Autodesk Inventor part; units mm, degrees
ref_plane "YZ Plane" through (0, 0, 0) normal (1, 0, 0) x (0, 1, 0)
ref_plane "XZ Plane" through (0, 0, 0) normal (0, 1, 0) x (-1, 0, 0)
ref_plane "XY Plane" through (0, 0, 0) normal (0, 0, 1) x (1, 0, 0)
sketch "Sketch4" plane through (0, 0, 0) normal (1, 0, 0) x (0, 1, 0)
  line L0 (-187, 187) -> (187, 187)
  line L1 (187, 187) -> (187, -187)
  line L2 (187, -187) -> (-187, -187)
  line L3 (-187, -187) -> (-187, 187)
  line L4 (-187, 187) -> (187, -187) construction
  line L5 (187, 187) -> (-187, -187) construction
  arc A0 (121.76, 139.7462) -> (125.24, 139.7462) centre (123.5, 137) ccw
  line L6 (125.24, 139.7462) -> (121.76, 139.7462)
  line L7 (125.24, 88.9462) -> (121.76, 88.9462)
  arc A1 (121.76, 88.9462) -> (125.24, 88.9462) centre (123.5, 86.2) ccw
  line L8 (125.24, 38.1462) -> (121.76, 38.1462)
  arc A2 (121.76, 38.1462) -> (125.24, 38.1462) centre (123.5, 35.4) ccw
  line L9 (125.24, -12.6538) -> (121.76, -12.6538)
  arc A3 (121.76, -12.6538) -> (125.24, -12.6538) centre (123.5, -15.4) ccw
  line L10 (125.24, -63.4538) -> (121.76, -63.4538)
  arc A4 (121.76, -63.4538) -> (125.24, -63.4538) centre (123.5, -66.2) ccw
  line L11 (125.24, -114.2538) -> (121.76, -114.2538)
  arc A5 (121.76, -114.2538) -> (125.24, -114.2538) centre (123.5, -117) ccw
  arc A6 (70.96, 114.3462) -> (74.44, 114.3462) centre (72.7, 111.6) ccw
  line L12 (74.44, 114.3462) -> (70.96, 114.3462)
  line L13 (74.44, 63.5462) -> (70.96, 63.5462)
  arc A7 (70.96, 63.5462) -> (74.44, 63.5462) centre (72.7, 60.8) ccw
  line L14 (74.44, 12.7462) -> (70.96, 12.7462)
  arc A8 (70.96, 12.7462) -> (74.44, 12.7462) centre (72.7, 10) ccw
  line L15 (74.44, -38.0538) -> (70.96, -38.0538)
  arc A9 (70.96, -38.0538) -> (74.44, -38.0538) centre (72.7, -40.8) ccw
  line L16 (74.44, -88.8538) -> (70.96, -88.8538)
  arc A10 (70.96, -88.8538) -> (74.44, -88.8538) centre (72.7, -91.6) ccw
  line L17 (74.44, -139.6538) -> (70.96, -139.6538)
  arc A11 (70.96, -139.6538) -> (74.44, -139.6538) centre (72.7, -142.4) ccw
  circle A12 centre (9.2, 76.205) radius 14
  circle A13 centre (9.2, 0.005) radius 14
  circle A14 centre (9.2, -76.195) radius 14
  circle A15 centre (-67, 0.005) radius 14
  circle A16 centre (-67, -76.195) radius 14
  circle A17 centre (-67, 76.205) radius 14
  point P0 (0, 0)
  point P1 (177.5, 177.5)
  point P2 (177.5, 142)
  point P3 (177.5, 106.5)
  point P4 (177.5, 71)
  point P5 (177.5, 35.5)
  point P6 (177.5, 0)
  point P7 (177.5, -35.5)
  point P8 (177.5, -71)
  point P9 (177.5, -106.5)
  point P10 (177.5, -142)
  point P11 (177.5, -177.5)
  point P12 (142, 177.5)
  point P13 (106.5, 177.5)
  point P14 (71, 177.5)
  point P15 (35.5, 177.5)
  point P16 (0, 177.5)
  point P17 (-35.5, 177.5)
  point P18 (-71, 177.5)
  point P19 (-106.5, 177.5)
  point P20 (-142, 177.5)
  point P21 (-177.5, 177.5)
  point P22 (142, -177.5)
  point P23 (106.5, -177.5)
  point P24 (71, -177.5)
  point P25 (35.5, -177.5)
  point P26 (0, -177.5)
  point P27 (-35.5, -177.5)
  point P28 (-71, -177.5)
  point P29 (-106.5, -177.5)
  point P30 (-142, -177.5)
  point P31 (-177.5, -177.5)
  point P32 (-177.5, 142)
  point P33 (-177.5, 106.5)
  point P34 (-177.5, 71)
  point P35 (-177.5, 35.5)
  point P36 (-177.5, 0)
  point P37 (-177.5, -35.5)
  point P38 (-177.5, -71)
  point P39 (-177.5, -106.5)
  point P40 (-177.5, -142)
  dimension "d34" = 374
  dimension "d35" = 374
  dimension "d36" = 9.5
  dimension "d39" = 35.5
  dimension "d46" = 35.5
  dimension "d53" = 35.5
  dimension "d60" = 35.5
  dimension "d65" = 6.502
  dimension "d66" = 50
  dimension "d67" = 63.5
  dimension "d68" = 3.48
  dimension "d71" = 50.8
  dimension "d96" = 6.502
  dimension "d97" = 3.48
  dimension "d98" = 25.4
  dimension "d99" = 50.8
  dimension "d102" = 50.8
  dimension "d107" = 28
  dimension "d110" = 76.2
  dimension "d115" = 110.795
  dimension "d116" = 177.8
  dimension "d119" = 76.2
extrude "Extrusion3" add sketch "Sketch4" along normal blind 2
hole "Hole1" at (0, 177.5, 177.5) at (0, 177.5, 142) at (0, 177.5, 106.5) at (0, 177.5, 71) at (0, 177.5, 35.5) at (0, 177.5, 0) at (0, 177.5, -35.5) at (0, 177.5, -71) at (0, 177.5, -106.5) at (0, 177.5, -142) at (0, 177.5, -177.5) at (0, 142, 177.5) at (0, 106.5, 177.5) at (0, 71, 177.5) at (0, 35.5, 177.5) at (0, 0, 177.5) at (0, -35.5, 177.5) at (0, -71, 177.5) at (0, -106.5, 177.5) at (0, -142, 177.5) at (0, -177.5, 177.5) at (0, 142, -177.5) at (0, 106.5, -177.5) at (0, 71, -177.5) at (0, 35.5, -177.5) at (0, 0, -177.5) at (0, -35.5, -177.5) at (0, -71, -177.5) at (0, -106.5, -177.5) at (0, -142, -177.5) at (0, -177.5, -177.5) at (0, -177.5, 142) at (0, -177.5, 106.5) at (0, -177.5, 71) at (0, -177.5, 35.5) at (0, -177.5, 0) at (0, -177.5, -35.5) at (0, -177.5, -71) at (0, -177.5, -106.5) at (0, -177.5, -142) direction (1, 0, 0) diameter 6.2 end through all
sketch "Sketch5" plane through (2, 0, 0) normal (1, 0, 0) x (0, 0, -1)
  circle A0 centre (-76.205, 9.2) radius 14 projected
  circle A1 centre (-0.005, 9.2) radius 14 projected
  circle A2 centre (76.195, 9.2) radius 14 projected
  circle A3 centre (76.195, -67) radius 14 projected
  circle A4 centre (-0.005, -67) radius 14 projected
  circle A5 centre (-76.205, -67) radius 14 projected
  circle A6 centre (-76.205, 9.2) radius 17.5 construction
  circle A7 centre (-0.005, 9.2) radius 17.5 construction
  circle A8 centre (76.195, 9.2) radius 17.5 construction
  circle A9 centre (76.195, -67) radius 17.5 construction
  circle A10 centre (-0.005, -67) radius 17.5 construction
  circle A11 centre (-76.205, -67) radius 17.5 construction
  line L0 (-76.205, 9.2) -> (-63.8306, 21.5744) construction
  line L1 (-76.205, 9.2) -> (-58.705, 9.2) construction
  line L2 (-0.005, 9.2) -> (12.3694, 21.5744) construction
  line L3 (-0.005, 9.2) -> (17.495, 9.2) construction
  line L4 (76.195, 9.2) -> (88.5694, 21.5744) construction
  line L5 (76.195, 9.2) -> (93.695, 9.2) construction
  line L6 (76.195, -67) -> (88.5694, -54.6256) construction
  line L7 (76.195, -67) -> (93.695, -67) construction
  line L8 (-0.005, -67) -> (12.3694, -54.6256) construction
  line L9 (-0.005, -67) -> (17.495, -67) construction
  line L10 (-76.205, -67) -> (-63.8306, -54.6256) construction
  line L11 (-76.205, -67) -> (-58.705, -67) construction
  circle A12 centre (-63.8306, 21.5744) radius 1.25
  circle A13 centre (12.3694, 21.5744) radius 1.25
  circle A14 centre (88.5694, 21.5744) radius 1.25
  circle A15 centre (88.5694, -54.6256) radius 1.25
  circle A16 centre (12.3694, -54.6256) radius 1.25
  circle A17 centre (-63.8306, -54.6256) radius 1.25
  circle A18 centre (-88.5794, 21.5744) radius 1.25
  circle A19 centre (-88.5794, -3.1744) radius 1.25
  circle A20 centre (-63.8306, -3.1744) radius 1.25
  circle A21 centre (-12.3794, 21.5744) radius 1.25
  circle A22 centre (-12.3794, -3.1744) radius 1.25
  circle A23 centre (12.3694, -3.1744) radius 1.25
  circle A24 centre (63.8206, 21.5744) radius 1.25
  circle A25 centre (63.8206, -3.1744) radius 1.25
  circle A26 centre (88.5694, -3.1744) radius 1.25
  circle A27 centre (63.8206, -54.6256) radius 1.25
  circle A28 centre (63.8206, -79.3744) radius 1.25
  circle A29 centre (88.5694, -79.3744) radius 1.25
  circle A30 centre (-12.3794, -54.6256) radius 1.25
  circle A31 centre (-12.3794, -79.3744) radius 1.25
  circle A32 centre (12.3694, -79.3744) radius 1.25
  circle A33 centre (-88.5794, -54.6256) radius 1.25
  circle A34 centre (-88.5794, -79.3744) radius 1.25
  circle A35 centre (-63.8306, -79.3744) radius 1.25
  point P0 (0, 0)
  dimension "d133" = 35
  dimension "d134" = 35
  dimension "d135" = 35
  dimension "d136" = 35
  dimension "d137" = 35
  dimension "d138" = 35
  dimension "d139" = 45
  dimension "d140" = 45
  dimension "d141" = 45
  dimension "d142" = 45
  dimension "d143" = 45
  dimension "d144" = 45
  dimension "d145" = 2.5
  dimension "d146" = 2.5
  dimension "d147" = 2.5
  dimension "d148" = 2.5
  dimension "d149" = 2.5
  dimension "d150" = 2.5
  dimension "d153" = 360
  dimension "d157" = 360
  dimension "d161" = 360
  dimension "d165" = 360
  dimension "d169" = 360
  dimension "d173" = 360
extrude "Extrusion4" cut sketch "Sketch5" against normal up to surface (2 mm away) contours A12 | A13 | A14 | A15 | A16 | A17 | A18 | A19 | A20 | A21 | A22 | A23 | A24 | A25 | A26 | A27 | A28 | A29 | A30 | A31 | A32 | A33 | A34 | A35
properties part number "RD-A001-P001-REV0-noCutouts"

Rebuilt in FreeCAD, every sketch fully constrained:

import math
import FreeCAD as App
import Part
import Sketcher
from FreeCAD import Vector

doc = App.newDocument("Part")
params = doc.addObject("Spreadsheet::Sheet", "Params")
for row, (alias, value) in enumerate([
    ("sketch1_diameter", "28 mm"),
    ("sketch1_width", "374 mm"),
    ("sketch1_width2", "3.48 mm"),
    ("pad1_length", "2 mm"),
    ("sketch2_diameter", "6.2 mm"),
    ("hole_diameter", "6.2 mm"),
    ("sketch3_diameter", "2.5 mm"),
    ("pocket1_length", "2 mm"),
], start=1):
    params.set(f"A{row}", alias)
    params.set(f"B{row}", "=" + value)
    params.setAlias(f"B{row}", alias)

body = doc.addObject("PartDesign::Body", "Body")

sketch1 = body.newObject("Sketcher::SketchObject", "Sketch")
sketch1.AttachmentSupport = (doc.getObject("YZ_Plane"), [""])
sketch1.MapMode = "FlatFace"
sketch1.addGeometry([
    Part.LineSegment(Vector(187, 187, 0), Vector(-187, 187, 0)),
    Part.LineSegment(Vector(-187, 187, 0), Vector(-187, -187, 0)),
    Part.LineSegment(Vector(-187, -187, 0), Vector(187, -187, 0)),
    Part.LineSegment(Vector(187, -187, 0), Vector(187, 187, 0)),
    Part.Circle(Vector(-67, -76.195, 0), Vector(0, 0, 1), 14),
    Part.LineSegment(Vector(70.96, -139.6538, 0), Vector(74.44, -139.6538, 0)),
    Part.ArcOfCircle(Part.Circle(Vector(72.7, -142.4, 0), Vector(0, 0, 1), 3.251033), math.radians(122.358461), math.radians(417.641539)),
    Part.LineSegment(Vector(121.76, -114.2538, 0), Vector(125.24, -114.2538, 0)),
    Part.ArcOfCircle(Part.Circle(Vector(123.5, -117, 0), Vector(0, 0, 1), 3.251033), math.radians(122.358461), math.radians(417.641539)),
    Part.Circle(Vector(9.2, -76.195, 0), Vector(0, 0, 1), 14),
    Part.LineSegment(Vector(70.96, -88.8538, 0), Vector(74.44, -88.8538, 0)),
    Part.ArcOfCircle(Part.Circle(Vector(72.7, -91.6, 0), Vector(0, 0, 1), 3.251033), math.radians(122.358461), math.radians(417.641539)),
    Part.LineSegment(Vector(70.96, -38.0538, 0), Vector(74.44, -38.0538, 0)),
    Part.ArcOfCircle(Part.Circle(Vector(72.7, -40.8, 0), Vector(0, 0, 1), 3.251033), math.radians(122.358461), math.radians(417.641539)),
    Part.LineSegment(Vector(121.76, -63.4538, 0), Vector(125.24, -63.4538, 0)),
    Part.ArcOfCircle(Part.Circle(Vector(123.5, -66.2, 0), Vector(0, 0, 1), 3.251033), math.radians(122.358461), math.radians(417.641539)),
    Part.LineSegment(Vector(121.76, -12.6538, 0), Vector(125.24, -12.6538, 0)),
    Part.ArcOfCircle(Part.Circle(Vector(123.5, -15.4, 0), Vector(0, 0, 1), 3.251033), math.radians(122.358461), math.radians(417.641539)),
    Part.Circle(Vector(-67, 0.005, 0), Vector(0, 0, 1), 14),
    Part.Circle(Vector(-67, 76.205, 0), Vector(0, 0, 1), 14),
    Part.Circle(Vector(9.2, 0.005, 0), Vector(0, 0, 1), 14),
    Part.LineSegment(Vector(70.96, 12.7462, 0), Vector(74.44, 12.7462, 0)),
    Part.ArcOfCircle(Part.Circle(Vector(72.7, 10, 0), Vector(0, 0, 1), 3.251033), math.radians(122.358461), math.radians(417.641539)),
    Part.Circle(Vector(9.2, 76.205, 0), Vector(0, 0, 1), 14),
    Part.LineSegment(Vector(70.96, 63.5462, 0), Vector(74.44, 63.5462, 0)),
    Part.ArcOfCircle(Part.Circle(Vector(72.7, 60.8, 0), Vector(0, 0, 1), 3.251033), math.radians(122.358461), math.radians(417.641539)),
    Part.LineSegment(Vector(121.76, 38.1462, 0), Vector(125.24, 38.1462, 0)),
    Part.ArcOfCircle(Part.Circle(Vector(123.5, 35.4, 0), Vector(0, 0, 1), 3.251033), math.radians(122.358461), math.radians(417.641539)),
    Part.LineSegment(Vector(121.76, 88.9462, 0), Vector(125.24, 88.9462, 0)),
    Part.ArcOfCircle(Part.Circle(Vector(123.5, 86.2, 0), Vector(0, 0, 1), 3.251033), math.radians(122.358461), math.radians(417.641539)),
    Part.ArcOfCircle(Part.Circle(Vector(72.7, 111.6, 0), Vector(0, 0, 1), 3.251033), math.radians(122.358461), math.radians(417.641539)),
    Part.LineSegment(Vector(70.96, 114.3462, 0), Vector(74.44, 114.3462, 0)),
    Part.ArcOfCircle(Part.Circle(Vector(123.5, 137, 0), Vector(0, 0, 1), 3.251033), math.radians(122.358461), math.radians(417.641539)),
    Part.LineSegment(Vector(121.76, 139.7462, 0), Vector(125.24, 139.7462, 0)),
], False)
sketch1.addConstraint([
    Sketcher.Constraint("Coincident", 0, 2, 1, 1),
    Sketcher.Constraint("Coincident", 1, 2, 2, 1),
    Sketcher.Constraint("Coincident", 2, 2, 3, 1),
    Sketcher.Constraint("Coincident", 3, 2, 0, 1),
    Sketcher.Constraint("Coincident", 5, 1, 6, 1),
    Sketcher.Constraint("Coincident", 6, 2, 5, 2),
    Sketcher.Constraint("Coincident", 7, 1, 8, 1),
    Sketcher.Constraint("Coincident", 8, 2, 7, 2),
    Sketcher.Constraint("Coincident", 10, 1, 11, 1),
    Sketcher.Constraint("Coincident", 11, 2, 10, 2),
    Sketcher.Constraint("Coincident", 12, 1, 13, 1),
    Sketcher.Constraint("Coincident", 13, 2, 12, 2),
    Sketcher.Constraint("Coincident", 14, 1, 15, 1),
    Sketcher.Constraint("Coincident", 15, 2, 14, 2),
    Sketcher.Constraint("Coincident", 16, 1, 17, 1),
    Sketcher.Constraint("Coincident", 17, 2, 16, 2),
    Sketcher.Constraint("Coincident", 21, 1, 22, 1),
    Sketcher.Constraint("Coincident", 22, 2, 21, 2),
    Sketcher.Constraint("Coincident", 24, 1, 25, 1),
    Sketcher.Constraint("Coincident", 25, 2, 24, 2),
    Sketcher.Constraint("Coincident", 26, 1, 27, 1),
    Sketcher.Constraint("Coincident", 27, 2, 26, 2),
    Sketcher.Constraint("Coincident", 28, 1, 29, 1),
    Sketcher.Constraint("Coincident", 29, 2, 28, 2),
    Sketcher.Constraint("Coincident", 30, 1, 31, 1),
    Sketcher.Constraint("Coincident", 31, 2, 30, 2),
    Sketcher.Constraint("Coincident", 32, 1, 33, 1),
    Sketcher.Constraint("Coincident", 33, 2, 32, 2),
    Sketcher.Constraint("Horizontal", 0),
    Sketcher.Constraint("Vertical", 1),
    Sketcher.Constraint("Horizontal", 2),
    Sketcher.Constraint("Vertical", 3),
    Sketcher.Constraint("Horizontal", 5),
    Sketcher.Constraint("Horizontal", 7),
    Sketcher.Constraint("Horizontal", 10),
    Sketcher.Constraint("Horizontal", 12),
    Sketcher.Constraint("Horizontal", 14),
    Sketcher.Constraint("Horizontal", 16),
    Sketcher.Constraint("Horizontal", 21),
    Sketcher.Constraint("Horizontal", 24),
    Sketcher.Constraint("Horizontal", 26),
    Sketcher.Constraint("Horizontal", 28),
    Sketcher.Constraint("Horizontal", 31),
    Sketcher.Constraint("Horizontal", 33),
    Sketcher.Constraint("Equal", 6, 8),
    Sketcher.Constraint("Equal", 4, 9),
    Sketcher.Constraint("Equal", 8, 11),
    Sketcher.Constraint("Equal", 11, 13),
    Sketcher.Constraint("Equal", 13, 15),
    Sketcher.Constraint("Equal", 15, 17),
    Sketcher.Constraint("Equal", 9, 18),
    Sketcher.Constraint("Equal", 18, 19),
    Sketcher.Constraint("Equal", 19, 20),
    Sketcher.Constraint("Equal", 17, 22),
    Sketcher.Constraint("Equal", 20, 23),
    Sketcher.Constraint("Equal", 22, 25),
    Sketcher.Constraint("Equal", 25, 27),
    Sketcher.Constraint("Equal", 27, 29),
    Sketcher.Constraint("Equal", 29, 30),
    Sketcher.Constraint("Equal", 30, 32),
    Sketcher.Constraint("Symmetric", 0, 2, 2, 2, -1, 1),
    Sketcher.Constraint("Horizontal", 4, 3, 9, 3),
    Sketcher.Constraint("Horizontal", 18, 3, 20, 3),
    Sketcher.Constraint("Horizontal", 19, 3, 23, 3),
    Sketcher.Constraint("Vertical", 6, 3, 11, 3),
    Sketcher.Constraint("Vertical", 11, 3, 13, 3),
    Sketcher.Constraint("Vertical", 8, 3, 15, 3),
    Sketcher.Constraint("Vertical", 15, 3, 17, 3),
    Sketcher.Constraint("Vertical", 4, 3, 18, 3),
    Sketcher.Constraint("Vertical", 18, 3, 19, 3),
    Sketcher.Constraint("Vertical", 9, 3, 20, 3),
    Sketcher.Constraint("Vertical", 13, 3, 22, 3),
    Sketcher.Constraint("Vertical", 20, 3, 23, 3),
    Sketcher.Constraint("Vertical", 22, 3, 25, 3),
    Sketcher.Constraint("Vertical", 17, 3, 27, 3),
    Sketcher.Constraint("Vertical", 27, 3, 29, 3),
    Sketcher.Constraint("Vertical", 25, 3, 30, 3),
    Sketcher.Constraint("Vertical", 29, 3, 32, 3),
    Sketcher.Constraint("Vertical", 5, 1, 10, 1),
    Sketcher.Constraint("Vertical", 10, 1, 12, 1),
    Sketcher.Constraint("Vertical", 7, 1, 14, 1),
    Sketcher.Constraint("Vertical", 14, 1, 16, 1),
    Sketcher.Constraint("Vertical", 12, 1, 21, 1),
    Sketcher.Constraint("Vertical", 21, 1, 24, 1),
    Sketcher.Constraint("Vertical", 16, 1, 26, 1),
    Sketcher.Constraint("Vertical", 26, 1, 28, 1),
    Sketcher.Constraint("Vertical", 24, 1, 30, 1),
    Sketcher.Constraint("Vertical", 28, 1, 32, 1),
    Sketcher.Constraint("Equal", 5, 7),
    Sketcher.Constraint("Equal", 2, 1),
    Sketcher.Constraint("Diameter", 4, 28.0),
    Sketcher.Constraint("DistanceX", 0, 2, 0, 1, 374.0),
    Sketcher.Constraint("DistanceY", -1, 1, 22, 3, 10.0),
    Sketcher.Constraint("Radius", 6, 3.251),
    Sketcher.Constraint("DistanceY", 32, 3, 3, 2, 50.0),
    Sketcher.Constraint("DistanceX", 5, 1, 5, 2, 3.48),
    Sketcher.Constraint("DistanceX", 6, 3, 8, 3, 50.8),
    Sketcher.Constraint("DistanceY", 6, 3, 8, 3, 25.4),
    Sketcher.Constraint("DistanceX", 4, 3, 9, 3, 76.2),
    Sketcher.Constraint("DistanceX", 9, 3, 6, 3, 63.5),
    Sketcher.Constraint("DistanceY", 6, 3, 11, 3, 50.8),
    Sketcher.Constraint("DistanceY", 11, 3, 13, 3, 50.8),
    Sketcher.Constraint("DistanceY", 8, 3, 15, 3, 50.8),
    Sketcher.Constraint("DistanceY", 15, 3, 17, 3, 50.8),
    Sketcher.Constraint("DistanceY", 4, 3, 18, 3, 76.2),
    Sketcher.Constraint("DistanceY", 18, 3, 19, 3, 76.2),
    Sketcher.Constraint("DistanceY", 13, 3, 22, 3, 50.8),
    Sketcher.Constraint("DistanceY", 22, 3, 25, 3, 50.8),
    Sketcher.Constraint("DistanceY", 17, 3, 27, 3, 50.8),
    Sketcher.Constraint("DistanceY", 27, 3, 29, 3, 50.8),
    Sketcher.Constraint("DistanceY", 25, 3, 30, 3, 50.8),
    Sketcher.Constraint("DistanceX", 8, 3, 2, 2, 63.5),
    Sketcher.Constraint("DistanceY", 19, 3, 0, 2, 110.795),
])
sketch1.setExpression("Constraints[90]", "Params.sketch1_diameter")
sketch1.setExpression("Constraints[91]", "Params.sketch1_width")
sketch1.setExpression("Constraints[95]", "Params.sketch1_width2")
pad1 = body.newObject("PartDesign::Pad", "Pad")
pad1.Profile = sketch1
pad1.setExpression("Length", "Params.pad1_length")

sketch2 = body.newObject("Sketcher::SketchObject", "Sketch001")
sketch2.AttachmentSupport = (doc.getObject("YZ_Plane"), [""])
sketch2.MapMode = "FlatFace"
sketch2.addGeometry([
    Part.Circle(Vector(177.5, 177.5, 0), Vector(0, 0, 1), 3.1),
    Part.Circle(Vector(177.5, 142, 0), Vector(0, 0, 1), 3.1),
    Part.Circle(Vector(177.5, 106.5, 0), Vector(0, 0, 1), 3.1),
    Part.Circle(Vector(177.5, 71, 0), Vector(0, 0, 1), 3.1),
    Part.Circle(Vector(177.5, 35.5, 0), Vector(0, 0, 1), 3.1),
    Part.Circle(Vector(177.5, 0, 0), Vector(0, 0, 1), 3.1),
    Part.Circle(Vector(177.5, -35.5, 0), Vector(0, 0, 1), 3.1),
    Part.Circle(Vector(177.5, -71, 0), Vector(0, 0, 1), 3.1),
    Part.Circle(Vector(177.5, -106.5, 0), Vector(0, 0, 1), 3.1),
    Part.Circle(Vector(177.5, -142, 0), Vector(0, 0, 1), 3.1),
    Part.Circle(Vector(177.5, -177.5, 0), Vector(0, 0, 1), 3.1),
    Part.Circle(Vector(142, 177.5, 0), Vector(0, 0, 1), 3.1),
    Part.Circle(Vector(106.5, 177.5, 0), Vector(0, 0, 1), 3.1),
    Part.Circle(Vector(71, 177.5, 0), Vector(0, 0, 1), 3.1),
    Part.Circle(Vector(35.5, 177.5, 0), Vector(0, 0, 1), 3.1),
    Part.Circle(Vector(0, 177.5, 0), Vector(0, 0, 1), 3.1),
    Part.Circle(Vector(-35.5, 177.5, 0), Vector(0, 0, 1), 3.1),
    Part.Circle(Vector(-71, 177.5, 0), Vector(0, 0, 1), 3.1),
    Part.Circle(Vector(-106.5, 177.5, 0), Vector(0, 0, 1), 3.1),
    Part.Circle(Vector(-142, 177.5, 0), Vector(0, 0, 1), 3.1),
    Part.Circle(Vector(-177.5, 177.5, 0), Vector(0, 0, 1), 3.1),
    Part.Circle(Vector(142, -177.5, 0), Vector(0, 0, 1), 3.1),
    Part.Circle(Vector(106.5, -177.5, 0), Vector(0, 0, 1), 3.1),
    Part.Circle(Vector(71, -177.5, 0), Vector(0, 0, 1), 3.1),
    Part.Circle(Vector(35.5, -177.5, 0), Vector(0, 0, 1), 3.1),
    Part.Circle(Vector(0, -177.5, 0), Vector(0, 0, 1), 3.1),
    Part.Circle(Vector(-35.5, -177.5, 0), Vector(0, 0, 1), 3.1),
    Part.Circle(Vector(-71, -177.5, 0), Vector(0, 0, 1), 3.1),
    Part.Circle(Vector(-106.5, -177.5, 0), Vector(0, 0, 1), 3.1),
    Part.Circle(Vector(-142, -177.5, 0), Vector(0, 0, 1), 3.1),
    Part.Circle(Vector(-177.5, -177.5, 0), Vector(0, 0, 1), 3.1),
    Part.Circle(Vector(-177.5, 142, 0), Vector(0, 0, 1), 3.1),
    Part.Circle(Vector(-177.5, 106.5, 0), Vector(0, 0, 1), 3.1),
    Part.Circle(Vector(-177.5, 71, 0), Vector(0, 0, 1), 3.1),
    Part.Circle(Vector(-177.5, 35.5, 0), Vector(0, 0, 1), 3.1),
    Part.Circle(Vector(-177.5, 0, 0), Vector(0, 0, 1), 3.1),
    Part.Circle(Vector(-177.5, -35.5, 0), Vector(0, 0, 1), 3.1),
    Part.Circle(Vector(-177.5, -71, 0), Vector(0, 0, 1), 3.1),
    Part.Circle(Vector(-177.5, -106.5, 0), Vector(0, 0, 1), 3.1),
    Part.Circle(Vector(-177.5, -142, 0), Vector(0, 0, 1), 3.1),
], False)
sketch2.addConstraint([
    Sketcher.Constraint("Equal", 0, 1),
    Sketcher.Constraint("Equal", 1, 2),
    Sketcher.Constraint("Equal", 2, 3),
    Sketcher.Constraint("Equal", 3, 4),
    Sketcher.Constraint("Equal", 4, 5),
    Sketcher.Constraint("Equal", 5, 6),
    Sketcher.Constraint("Equal", 6, 7),
    Sketcher.Constraint("Equal", 7, 8),
    Sketcher.Constraint("Equal", 8, 9),
    Sketcher.Constraint("Equal", 9, 10),
    Sketcher.Constraint("Equal", 10, 11),
    Sketcher.Constraint("Equal", 11, 12),
    Sketcher.Constraint("Equal", 12, 13),
    Sketcher.Constraint("Equal", 13, 14),
    Sketcher.Constraint("Equal", 14, 15),
    Sketcher.Constraint("Equal", 15, 16),
    Sketcher.Constraint("Equal", 16, 17),
    Sketcher.Constraint("Equal", 17, 18),
    Sketcher.Constraint("Equal", 18, 19),
    Sketcher.Constraint("Equal", 19, 20),
    Sketcher.Constraint("Equal", 20, 21),
    Sketcher.Constraint("Equal", 21, 22),
    Sketcher.Constraint("Equal", 22, 23),
    Sketcher.Constraint("Equal", 23, 24),
    Sketcher.Constraint("Equal", 24, 25),
    Sketcher.Constraint("Equal", 25, 26),
    Sketcher.Constraint("Equal", 26, 27),
    Sketcher.Constraint("Equal", 27, 28),
    Sketcher.Constraint("Equal", 28, 29),
    Sketcher.Constraint("Equal", 29, 30),
    Sketcher.Constraint("Equal", 30, 31),
    Sketcher.Constraint("Equal", 31, 32),
    Sketcher.Constraint("Equal", 32, 33),
    Sketcher.Constraint("Equal", 33, 34),
    Sketcher.Constraint("Equal", 34, 35),
    Sketcher.Constraint("Equal", 35, 36),
    Sketcher.Constraint("Equal", 36, 37),
    Sketcher.Constraint("Equal", 37, 38),
    Sketcher.Constraint("Equal", 38, 39),
    Sketcher.Constraint("Symmetric", 10, 3, 20, 3, -1, 1),
    Sketcher.Constraint("Symmetric", 19, 3, 21, 3, -1, 1),
    Sketcher.Constraint("Symmetric", 18, 3, 22, 3, -1, 1),
    Sketcher.Constraint("Symmetric", 17, 3, 23, 3, -1, 1),
    Sketcher.Constraint("Symmetric", 16, 3, 24, 3, -1, 1),
    Sketcher.Constraint("Symmetric", 15, 3, 25, 3, -1, 1),
    Sketcher.Constraint("Symmetric", 14, 3, 26, 3, -1, 1),
    Sketcher.Constraint("Symmetric", 13, 3, 27, 3, -1, 1),
    Sketcher.Constraint("Symmetric", 12, 3, 28, 3, -1, 1),
    Sketcher.Constraint("Symmetric", 11, 3, 29, 3, -1, 1),
    Sketcher.Constraint("Symmetric", 0, 3, 30, 3, -1, 1),
    Sketcher.Constraint("Symmetric", 9, 3, 31, 3, -1, 1),
    Sketcher.Constraint("Symmetric", 8, 3, 32, 3, -1, 1),
    Sketcher.Constraint("Symmetric", 7, 3, 33, 3, -1, 1),
    Sketcher.Constraint("Symmetric", 6, 3, 34, 3, -1, 1),
    Sketcher.Constraint("Symmetric", 5, 3, 35, 3, -1, 1),
    Sketcher.Constraint("Symmetric", 4, 3, 36, 3, -1, 1),
    Sketcher.Constraint("Symmetric", 3, 3, 37, 3, -1, 1),
    Sketcher.Constraint("Symmetric", 2, 3, 38, 3, -1, 1),
    Sketcher.Constraint("Symmetric", 1, 3, 39, 3, -1, 1),
    Sketcher.Constraint("Symmetric", 14, 3, 16, 3, -2),
    Sketcher.Constraint("Symmetric", 13, 3, 17, 3, -2),
    Sketcher.Constraint("Symmetric", 12, 3, 18, 3, -2),
    Sketcher.Constraint("Symmetric", 11, 3, 19, 3, -2),
    Sketcher.Constraint("Symmetric", 0, 3, 20, 3, -2),
    Sketcher.Constraint("Symmetric", 1, 3, 31, 3, -2),
    Sketcher.Constraint("Symmetric", 2, 3, 32, 3, -2),
    Sketcher.Constraint("Symmetric", 3, 3, 33, 3, -2),
    Sketcher.Constraint("Symmetric", 4, 3, 34, 3, -2),
    Sketcher.Constraint("PointOnObject", 5, 3, -1),
    Sketcher.Constraint("PointOnObject", 15, 3, -2),
    Sketcher.Constraint("Horizontal", 0, 3, 11, 3),
    Sketcher.Constraint("Horizontal", 11, 3, 12, 3),
    Sketcher.Constraint("Horizontal", 12, 3, 13, 3),
    Sketcher.Constraint("Horizontal", 13, 3, 14, 3),
    Sketcher.Constraint("Horizontal", 14, 3, 15, 3),
    Sketcher.Constraint("Vertical", 0, 3, 1, 3),
    Sketcher.Constraint("Vertical", 1, 3, 2, 3),
    Sketcher.Constraint("Vertical", 2, 3, 3, 3),
    Sketcher.Constraint("Vertical", 3, 3, 4, 3),
    Sketcher.Constraint("Vertical", 4, 3, 5, 3),
    Sketcher.Constraint("Diameter", 0, 6.2),
    Sketcher.Constraint("DistanceY", -1, 1, 1, 3, 142.0),
    Sketcher.Constraint("DistanceY", -1, 1, 3, 3, 71.0),
    Sketcher.Constraint("DistanceX", -1, 1, 11, 3, 142.0),
    Sketcher.Constraint("DistanceX", -1, 1, 13, 3, 71.0),
    Sketcher.Constraint("DistanceY", 2, 3, 0, 3, 71.0),
    Sketcher.Constraint("DistanceY", 4, 3, 2, 3, 71.0),
    Sketcher.Constraint("DistanceY", 6, 3, 4, 3, 71.0),
    Sketcher.Constraint("DistanceX", 12, 3, 0, 3, 71.0),
    Sketcher.Constraint("DistanceX", 14, 3, 12, 3, 71.0),
    Sketcher.Constraint("DistanceX", 16, 3, 14, 3, 71.0),
])
sketch2.setExpression("Constraints[80]", "Params.sketch2_diameter")
doc.recompute()
hole = body.newObject("PartDesign::Hole", "Hole")
hole.Profile = sketch2
hole.ThreadType = "None"
hole.setExpression("Diameter", "Params.hole_diameter")
hole.DepthType = "ThroughAll"
hole.Reversed = True

sketch3 = body.newObject("Sketcher::SketchObject", "Sketch002")
sketch3.AttachmentSupport = (doc.getObject("YZ_Plane"), [""])
sketch3.MapMode = "FlatFace"
sketch3.AttachmentOffset = App.Placement(Vector(0, 0, 2), App.Rotation())
sketch3.addGeometry([
    Part.Circle(Vector(21.5744, 63.8306, 0), Vector(0, 0, 1), 1.25),
    Part.Circle(Vector(21.5744, -12.3694, 0), Vector(0, 0, 1), 1.25),
    Part.Circle(Vector(21.5744, -88.5694, 0), Vector(0, 0, 1), 1.25),
    Part.Circle(Vector(-54.6256, -88.5694, 0), Vector(0, 0, 1), 1.25),
    Part.Circle(Vector(-54.6256, -12.3694, 0), Vector(0, 0, 1), 1.25),
    Part.Circle(Vector(-54.6256, 63.8306, 0), Vector(0, 0, 1), 1.25),
    Part.Circle(Vector(21.5744, 88.5794, 0), Vector(0, 0, 1), 1.25),
    Part.Circle(Vector(-3.1744, 88.5794, 0), Vector(0, 0, 1), 1.25),
    Part.Circle(Vector(-3.1744, 63.8306, 0), Vector(0, 0, 1), 1.25),
    Part.Circle(Vector(21.5744, 12.3794, 0), Vector(0, 0, 1), 1.25),
    Part.Circle(Vector(-3.1744, 12.3794, 0), Vector(0, 0, 1), 1.25),
    Part.Circle(Vector(-3.1744, -12.3694, 0), Vector(0, 0, 1), 1.25),
    Part.Circle(Vector(21.5744, -63.8206, 0), Vector(0, 0, 1), 1.25),
    Part.Circle(Vector(-3.1744, -63.8206, 0), Vector(0, 0, 1), 1.25),
    Part.Circle(Vector(-3.1744, -88.5694, 0), Vector(0, 0, 1), 1.25),
    Part.Circle(Vector(-54.6256, -63.8206, 0), Vector(0, 0, 1), 1.25),
    Part.Circle(Vector(-79.3744, -63.8206, 0), Vector(0, 0, 1), 1.25),
    Part.Circle(Vector(-79.3744, -88.5694, 0), Vector(0, 0, 1), 1.25),
    Part.Circle(Vector(-54.6256, 12.3794, 0), Vector(0, 0, 1), 1.25),
    Part.Circle(Vector(-79.3744, 12.3794, 0), Vector(0, 0, 1), 1.25),
    Part.Circle(Vector(-79.3744, -12.3694, 0), Vector(0, 0, 1), 1.25),
    Part.Circle(Vector(-54.6256, 88.5794, 0), Vector(0, 0, 1), 1.25),
    Part.Circle(Vector(-79.3744, 88.5794, 0), Vector(0, 0, 1), 1.25),
    Part.Circle(Vector(-79.3744, 63.8306, 0), Vector(0, 0, 1), 1.25),
], False)
sketch3.addConstraint([
    Sketcher.Constraint("Equal", 0, 1),
    Sketcher.Constraint("Equal", 1, 2),
    Sketcher.Constraint("Equal", 2, 3),
    Sketcher.Constraint("Equal", 3, 4),
    Sketcher.Constraint("Equal", 4, 5),
    Sketcher.Constraint("Equal", 5, 6),
    Sketcher.Constraint("Equal", 6, 7),
    Sketcher.Constraint("Equal", 7, 8),
    Sketcher.Constraint("Equal", 8, 9),
    Sketcher.Constraint("Equal", 9, 10),
    Sketcher.Constraint("Equal", 10, 11),
    Sketcher.Constraint("Equal", 11, 12),
    Sketcher.Constraint("Equal", 12, 13),
    Sketcher.Constraint("Equal", 13, 14),
    Sketcher.Constraint("Equal", 14, 15),
    Sketcher.Constraint("Equal", 15, 16),
    Sketcher.Constraint("Equal", 16, 17),
    Sketcher.Constraint("Equal", 17, 18),
    Sketcher.Constraint("Equal", 18, 19),
    Sketcher.Constraint("Equal", 19, 20),
    Sketcher.Constraint("Equal", 20, 21),
    Sketcher.Constraint("Equal", 21, 22),
    Sketcher.Constraint("Equal", 22, 23),
    Sketcher.Constraint("Horizontal", 2, 3, 3, 3),
    Sketcher.Constraint("Horizontal", 1, 3, 4, 3),
    Sketcher.Constraint("Horizontal", 0, 3, 5, 3),
    Sketcher.Constraint("Horizontal", 6, 3, 7, 3),
    Sketcher.Constraint("Horizontal", 5, 3, 8, 3),
    Sketcher.Constraint("Horizontal", 9, 3, 10, 3),
    Sketcher.Constraint("Horizontal", 4, 3, 11, 3),
    Sketcher.Constraint("Horizontal", 12, 3, 13, 3),
    Sketcher.Constraint("Horizontal", 3, 3, 14, 3),
    Sketcher.Constraint("Horizontal", 13, 3, 15, 3),
    Sketcher.Constraint("Horizontal", 15, 3, 16, 3),
    Sketcher.Constraint("Horizontal", 14, 3, 17, 3),
    Sketcher.Constraint("Horizontal", 10, 3, 18, 3),
    Sketcher.Constraint("Horizontal", 18, 3, 19, 3),
    Sketcher.Constraint("Horizontal", 11, 3, 20, 3),
    Sketcher.Constraint("Horizontal", 7, 3, 21, 3),
    Sketcher.Constraint("Horizontal", 21, 3, 22, 3),
    Sketcher.Constraint("Horizontal", 8, 3, 23, 3),
    Sketcher.Constraint("Vertical", 0, 3, 1, 3),
    Sketcher.Constraint("Vertical", 1, 3, 2, 3),
    Sketcher.Constraint("Vertical", 3, 3, 4, 3),
    Sketcher.Constraint("Vertical", 4, 3, 5, 3),
    Sketcher.Constraint("Vertical", 2, 3, 6, 3),
    Sketcher.Constraint("Vertical", 7, 3, 8, 3),
    Sketcher.Constraint("Vertical", 6, 3, 9, 3),
    Sketcher.Constraint("Vertical", 8, 3, 10, 3),
    Sketcher.Constraint("Vertical", 10, 3, 11, 3),
    Sketcher.Constraint("Vertical", 9, 3, 12, 3),
    Sketcher.Constraint("Vertical", 11, 3, 13, 3),
    Sketcher.Constraint("Vertical", 13, 3, 14, 3),
    Sketcher.Constraint("Vertical", 5, 3, 15, 3),
    Sketcher.Constraint("Vertical", 16, 3, 17, 3),
    Sketcher.Constraint("Vertical", 15, 3, 18, 3),
    Sketcher.Constraint("Vertical", 17, 3, 19, 3),
    Sketcher.Constraint("Vertical", 19, 3, 20, 3),
    Sketcher.Constraint("Vertical", 18, 3, 21, 3),
    Sketcher.Constraint("Vertical", 20, 3, 22, 3),
    Sketcher.Constraint("Vertical", 22, 3, 23, 3),
    Sketcher.Constraint("Diameter", 0, 2.5),
    Sketcher.Constraint("DistanceY", 1, 3, 0, 3, 76.2),
    Sketcher.Constraint("DistanceY", 2, 3, 1, 3, 76.2),
    Sketcher.Constraint("DistanceX", 3, 3, 2, 3, 76.2),
    Sketcher.Constraint("DistanceY", 9, 3, 6, 3, 76.2),
    Sketcher.Constraint("DistanceY", 12, 3, 9, 3, 76.2),
    Sketcher.Constraint("DistanceX", 16, 3, 13, 3, 76.2),
    Sketcher.Constraint("DistanceX", -1, 1, 0, 3, 21.5744),
    Sketcher.Constraint("DistanceY", -1, 1, 0, 3, 63.8306),
    Sketcher.Constraint("DistanceY", -1, 1, 6, 3, 88.5794),
    Sketcher.Constraint("DistanceX", 7, 3, -1, 1, 3.1744),
])
sketch3.setExpression("Constraints[61]", "Params.sketch3_diameter")
pocket1 = body.newObject("PartDesign::Pocket", "Pocket")
pocket1.Profile = sketch3
pocket1.setExpression("Length", "Params.pocket1_length")

doc.recompute()
